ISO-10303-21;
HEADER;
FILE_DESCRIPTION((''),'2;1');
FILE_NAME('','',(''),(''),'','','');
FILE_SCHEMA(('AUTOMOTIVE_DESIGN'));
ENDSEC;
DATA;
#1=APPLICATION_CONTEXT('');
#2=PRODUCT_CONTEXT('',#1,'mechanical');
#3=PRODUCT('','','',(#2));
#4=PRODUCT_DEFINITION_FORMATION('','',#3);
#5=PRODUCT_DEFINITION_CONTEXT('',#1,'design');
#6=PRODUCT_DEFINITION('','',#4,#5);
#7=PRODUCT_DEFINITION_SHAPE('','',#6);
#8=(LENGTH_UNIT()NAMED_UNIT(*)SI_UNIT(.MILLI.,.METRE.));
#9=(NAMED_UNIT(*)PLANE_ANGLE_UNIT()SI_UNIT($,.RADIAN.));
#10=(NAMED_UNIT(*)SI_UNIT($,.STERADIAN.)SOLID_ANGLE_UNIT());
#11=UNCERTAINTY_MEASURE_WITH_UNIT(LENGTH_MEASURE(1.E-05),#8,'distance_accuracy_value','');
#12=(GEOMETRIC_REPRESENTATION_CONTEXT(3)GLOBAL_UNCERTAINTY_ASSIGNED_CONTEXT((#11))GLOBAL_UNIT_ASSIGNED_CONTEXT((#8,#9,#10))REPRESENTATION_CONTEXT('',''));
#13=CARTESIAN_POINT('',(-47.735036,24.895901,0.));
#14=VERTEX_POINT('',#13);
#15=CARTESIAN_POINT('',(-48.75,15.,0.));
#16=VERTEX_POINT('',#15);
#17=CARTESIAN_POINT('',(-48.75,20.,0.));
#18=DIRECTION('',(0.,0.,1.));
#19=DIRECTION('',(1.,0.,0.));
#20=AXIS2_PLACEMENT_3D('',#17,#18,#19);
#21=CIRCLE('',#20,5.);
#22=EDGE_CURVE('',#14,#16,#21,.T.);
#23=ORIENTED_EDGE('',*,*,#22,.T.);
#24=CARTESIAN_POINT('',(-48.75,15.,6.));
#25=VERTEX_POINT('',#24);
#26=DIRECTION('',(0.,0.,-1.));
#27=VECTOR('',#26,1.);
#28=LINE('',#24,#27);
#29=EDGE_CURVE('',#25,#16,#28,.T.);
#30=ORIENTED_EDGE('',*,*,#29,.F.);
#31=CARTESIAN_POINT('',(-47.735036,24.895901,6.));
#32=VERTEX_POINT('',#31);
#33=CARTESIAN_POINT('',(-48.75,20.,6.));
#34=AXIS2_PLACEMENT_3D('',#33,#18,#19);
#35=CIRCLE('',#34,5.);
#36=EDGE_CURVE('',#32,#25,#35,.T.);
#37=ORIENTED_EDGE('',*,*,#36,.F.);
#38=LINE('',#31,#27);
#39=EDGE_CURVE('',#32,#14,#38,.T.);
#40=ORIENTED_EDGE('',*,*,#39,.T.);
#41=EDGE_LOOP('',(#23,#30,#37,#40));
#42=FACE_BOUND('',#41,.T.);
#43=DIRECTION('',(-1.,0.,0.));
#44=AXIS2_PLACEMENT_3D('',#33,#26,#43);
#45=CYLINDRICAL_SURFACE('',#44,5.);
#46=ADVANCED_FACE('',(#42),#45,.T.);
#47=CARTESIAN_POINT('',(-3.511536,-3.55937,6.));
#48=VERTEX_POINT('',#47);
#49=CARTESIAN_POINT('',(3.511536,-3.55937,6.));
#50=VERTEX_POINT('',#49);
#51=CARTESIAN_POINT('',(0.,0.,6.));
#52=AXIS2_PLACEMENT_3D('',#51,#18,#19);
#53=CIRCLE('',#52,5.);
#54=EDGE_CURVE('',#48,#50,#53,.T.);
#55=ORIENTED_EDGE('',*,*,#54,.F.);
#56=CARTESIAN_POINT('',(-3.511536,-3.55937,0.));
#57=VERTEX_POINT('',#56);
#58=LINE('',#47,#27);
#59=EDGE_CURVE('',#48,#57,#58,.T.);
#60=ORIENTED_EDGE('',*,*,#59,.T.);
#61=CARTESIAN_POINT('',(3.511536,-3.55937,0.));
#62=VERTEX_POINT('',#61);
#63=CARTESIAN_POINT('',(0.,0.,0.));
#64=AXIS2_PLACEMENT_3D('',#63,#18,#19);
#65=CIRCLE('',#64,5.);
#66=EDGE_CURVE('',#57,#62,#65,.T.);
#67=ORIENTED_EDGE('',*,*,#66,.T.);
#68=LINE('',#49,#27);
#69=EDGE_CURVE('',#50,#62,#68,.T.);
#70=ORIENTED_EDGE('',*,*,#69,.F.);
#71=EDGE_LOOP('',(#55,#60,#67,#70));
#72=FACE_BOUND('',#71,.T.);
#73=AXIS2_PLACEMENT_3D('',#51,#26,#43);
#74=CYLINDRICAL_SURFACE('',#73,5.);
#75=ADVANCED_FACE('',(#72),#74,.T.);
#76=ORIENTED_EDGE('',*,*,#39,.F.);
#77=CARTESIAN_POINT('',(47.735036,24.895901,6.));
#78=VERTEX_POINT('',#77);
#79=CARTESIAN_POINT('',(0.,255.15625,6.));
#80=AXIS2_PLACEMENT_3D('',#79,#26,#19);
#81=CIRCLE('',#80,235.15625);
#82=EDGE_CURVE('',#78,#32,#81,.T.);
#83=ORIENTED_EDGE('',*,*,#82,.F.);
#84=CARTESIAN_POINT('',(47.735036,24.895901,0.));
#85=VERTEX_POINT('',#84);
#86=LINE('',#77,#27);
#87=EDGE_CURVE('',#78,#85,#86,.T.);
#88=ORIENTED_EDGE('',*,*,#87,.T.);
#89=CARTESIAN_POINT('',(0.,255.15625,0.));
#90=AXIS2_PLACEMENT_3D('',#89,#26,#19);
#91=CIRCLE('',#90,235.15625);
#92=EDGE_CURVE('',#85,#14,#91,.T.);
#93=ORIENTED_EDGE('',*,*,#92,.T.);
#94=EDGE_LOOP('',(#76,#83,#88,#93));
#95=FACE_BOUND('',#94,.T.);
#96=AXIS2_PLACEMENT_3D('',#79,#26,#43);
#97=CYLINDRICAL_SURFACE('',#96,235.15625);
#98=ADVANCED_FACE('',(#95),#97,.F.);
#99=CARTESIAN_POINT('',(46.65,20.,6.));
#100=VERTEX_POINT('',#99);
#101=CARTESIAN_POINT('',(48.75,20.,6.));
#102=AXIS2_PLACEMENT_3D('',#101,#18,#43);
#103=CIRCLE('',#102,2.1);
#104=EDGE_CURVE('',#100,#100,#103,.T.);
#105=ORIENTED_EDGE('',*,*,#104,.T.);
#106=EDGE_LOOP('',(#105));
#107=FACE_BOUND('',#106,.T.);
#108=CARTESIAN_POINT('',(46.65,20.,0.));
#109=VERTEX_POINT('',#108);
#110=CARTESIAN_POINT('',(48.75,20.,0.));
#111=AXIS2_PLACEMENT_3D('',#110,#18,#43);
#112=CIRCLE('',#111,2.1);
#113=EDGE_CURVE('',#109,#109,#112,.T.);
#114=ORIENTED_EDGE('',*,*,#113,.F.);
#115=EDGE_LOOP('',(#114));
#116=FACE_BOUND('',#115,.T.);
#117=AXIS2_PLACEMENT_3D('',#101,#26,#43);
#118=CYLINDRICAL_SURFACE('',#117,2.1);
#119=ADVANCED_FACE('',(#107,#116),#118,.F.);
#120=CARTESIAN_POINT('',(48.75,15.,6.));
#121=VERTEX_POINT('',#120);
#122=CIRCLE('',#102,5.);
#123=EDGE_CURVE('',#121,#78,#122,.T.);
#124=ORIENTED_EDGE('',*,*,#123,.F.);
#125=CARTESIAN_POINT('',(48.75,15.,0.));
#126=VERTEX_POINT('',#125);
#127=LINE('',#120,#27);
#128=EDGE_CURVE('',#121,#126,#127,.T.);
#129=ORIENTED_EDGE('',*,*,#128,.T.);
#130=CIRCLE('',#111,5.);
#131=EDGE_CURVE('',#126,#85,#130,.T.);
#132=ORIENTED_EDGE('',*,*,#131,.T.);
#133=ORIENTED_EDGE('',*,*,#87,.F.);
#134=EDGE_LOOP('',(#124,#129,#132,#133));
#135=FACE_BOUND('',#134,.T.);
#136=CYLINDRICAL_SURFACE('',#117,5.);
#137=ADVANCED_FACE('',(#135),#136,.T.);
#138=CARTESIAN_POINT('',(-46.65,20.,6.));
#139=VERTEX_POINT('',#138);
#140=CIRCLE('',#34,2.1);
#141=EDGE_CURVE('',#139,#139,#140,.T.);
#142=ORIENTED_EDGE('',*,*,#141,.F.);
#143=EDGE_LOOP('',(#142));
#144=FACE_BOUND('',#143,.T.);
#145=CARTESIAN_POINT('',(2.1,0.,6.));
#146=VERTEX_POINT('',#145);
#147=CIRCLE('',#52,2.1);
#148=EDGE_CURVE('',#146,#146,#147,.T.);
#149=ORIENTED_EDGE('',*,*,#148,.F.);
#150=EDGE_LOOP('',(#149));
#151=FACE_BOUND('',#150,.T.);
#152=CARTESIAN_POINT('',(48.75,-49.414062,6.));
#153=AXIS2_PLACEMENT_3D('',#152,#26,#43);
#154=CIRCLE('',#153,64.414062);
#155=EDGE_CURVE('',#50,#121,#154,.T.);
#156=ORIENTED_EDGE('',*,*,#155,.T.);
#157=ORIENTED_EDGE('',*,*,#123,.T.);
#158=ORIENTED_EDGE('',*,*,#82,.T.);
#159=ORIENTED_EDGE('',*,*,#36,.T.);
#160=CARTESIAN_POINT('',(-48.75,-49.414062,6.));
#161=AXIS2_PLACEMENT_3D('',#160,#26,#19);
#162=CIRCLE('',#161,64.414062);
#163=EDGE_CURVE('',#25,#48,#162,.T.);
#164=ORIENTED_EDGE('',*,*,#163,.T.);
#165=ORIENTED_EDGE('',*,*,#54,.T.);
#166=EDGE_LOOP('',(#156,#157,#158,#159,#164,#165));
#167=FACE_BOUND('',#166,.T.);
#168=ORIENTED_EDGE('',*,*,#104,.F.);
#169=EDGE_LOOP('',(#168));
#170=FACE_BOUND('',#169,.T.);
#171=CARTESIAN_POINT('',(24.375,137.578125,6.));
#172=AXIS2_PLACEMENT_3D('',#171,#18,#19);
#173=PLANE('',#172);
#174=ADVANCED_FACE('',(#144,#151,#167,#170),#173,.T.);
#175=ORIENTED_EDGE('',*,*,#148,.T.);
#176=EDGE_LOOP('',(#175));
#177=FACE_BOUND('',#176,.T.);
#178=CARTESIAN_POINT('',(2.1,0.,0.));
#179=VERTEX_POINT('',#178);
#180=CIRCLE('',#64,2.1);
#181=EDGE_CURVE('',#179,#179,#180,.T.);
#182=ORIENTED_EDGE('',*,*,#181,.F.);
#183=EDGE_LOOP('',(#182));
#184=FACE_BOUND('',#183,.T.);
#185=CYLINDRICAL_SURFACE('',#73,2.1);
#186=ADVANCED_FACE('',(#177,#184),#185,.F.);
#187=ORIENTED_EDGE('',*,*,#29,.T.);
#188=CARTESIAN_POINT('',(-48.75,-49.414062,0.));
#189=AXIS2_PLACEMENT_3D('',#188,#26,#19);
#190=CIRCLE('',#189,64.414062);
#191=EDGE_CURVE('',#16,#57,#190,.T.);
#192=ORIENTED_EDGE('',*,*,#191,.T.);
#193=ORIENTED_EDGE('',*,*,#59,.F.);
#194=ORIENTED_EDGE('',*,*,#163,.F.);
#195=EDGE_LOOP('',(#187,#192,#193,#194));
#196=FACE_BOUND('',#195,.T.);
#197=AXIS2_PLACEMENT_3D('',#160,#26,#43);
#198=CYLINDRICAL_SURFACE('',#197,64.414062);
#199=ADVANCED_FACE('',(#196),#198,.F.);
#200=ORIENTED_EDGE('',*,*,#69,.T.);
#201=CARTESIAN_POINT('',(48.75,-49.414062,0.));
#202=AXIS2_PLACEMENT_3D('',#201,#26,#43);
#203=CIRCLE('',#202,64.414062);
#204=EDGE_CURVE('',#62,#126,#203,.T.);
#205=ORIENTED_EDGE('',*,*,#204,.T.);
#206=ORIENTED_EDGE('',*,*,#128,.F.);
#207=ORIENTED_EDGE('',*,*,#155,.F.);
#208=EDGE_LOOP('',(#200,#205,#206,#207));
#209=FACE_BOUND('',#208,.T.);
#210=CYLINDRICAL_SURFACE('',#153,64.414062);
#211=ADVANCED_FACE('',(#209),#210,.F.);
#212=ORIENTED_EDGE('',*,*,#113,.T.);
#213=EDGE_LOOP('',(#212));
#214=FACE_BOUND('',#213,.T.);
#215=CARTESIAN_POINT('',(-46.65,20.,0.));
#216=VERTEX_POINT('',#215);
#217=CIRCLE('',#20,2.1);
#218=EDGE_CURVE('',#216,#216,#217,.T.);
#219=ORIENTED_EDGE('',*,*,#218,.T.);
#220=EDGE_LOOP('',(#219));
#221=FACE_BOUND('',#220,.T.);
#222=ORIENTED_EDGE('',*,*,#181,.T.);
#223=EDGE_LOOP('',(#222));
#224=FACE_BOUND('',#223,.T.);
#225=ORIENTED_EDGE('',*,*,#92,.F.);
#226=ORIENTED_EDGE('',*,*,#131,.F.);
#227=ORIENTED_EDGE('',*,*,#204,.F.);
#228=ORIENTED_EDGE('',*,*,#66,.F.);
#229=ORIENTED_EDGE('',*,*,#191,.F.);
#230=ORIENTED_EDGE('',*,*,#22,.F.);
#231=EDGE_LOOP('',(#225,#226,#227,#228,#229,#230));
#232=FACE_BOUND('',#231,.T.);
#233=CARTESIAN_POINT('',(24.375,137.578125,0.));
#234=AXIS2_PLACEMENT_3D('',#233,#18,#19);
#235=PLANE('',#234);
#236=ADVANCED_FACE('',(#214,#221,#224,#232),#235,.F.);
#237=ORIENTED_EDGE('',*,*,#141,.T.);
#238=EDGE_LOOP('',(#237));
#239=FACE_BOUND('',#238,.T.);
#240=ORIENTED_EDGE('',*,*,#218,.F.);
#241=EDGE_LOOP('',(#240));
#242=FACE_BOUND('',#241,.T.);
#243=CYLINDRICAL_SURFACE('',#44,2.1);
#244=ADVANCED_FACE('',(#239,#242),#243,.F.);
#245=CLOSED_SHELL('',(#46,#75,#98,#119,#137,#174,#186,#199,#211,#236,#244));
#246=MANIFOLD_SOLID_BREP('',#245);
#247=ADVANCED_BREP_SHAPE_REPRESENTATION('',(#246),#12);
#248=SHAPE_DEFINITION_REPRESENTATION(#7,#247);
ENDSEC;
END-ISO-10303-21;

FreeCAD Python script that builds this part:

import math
import FreeCAD as App
import Part
import Sketcher

doc = App.newDocument("Part")
params = doc.addObject("Spreadsheet::Sheet", "Params")
for row, (alias, value) in enumerate([
    ("sketch1_radius", "5 mm"),
    ("sketch1_diameter", "4.2 mm"),
    ("pad1_length", "6 mm"),
], start=1):
    params.set(f"A{row}", alias)
    params.set(f"B{row}", "=" + value)
    params.setAlias(f"B{row}", alias)

body = doc.addObject("PartDesign::Body", "Body")

# Sketch on XY plane
sketch1 = body.newObject("Sketcher::SketchObject", "Sketch")
sketch1.AttachmentSupport = (doc.getObject("XY_Plane"), [""])
sketch1.MapMode = "FlatFace"
sketch1.addGeometry([
    Part.ArcOfCircle(Part.Circle(App.Vector(48.75, -49.414063, 0), App.Vector(0, 0, 1), 64.414063), math.radians(90), math.radians(134.61241)),  # 0
    Part.ArcOfCircle(Part.Circle(App.Vector(48.75, 20, 0), App.Vector(0, 0, 1), 5), math.radians(-90), math.radians(101.712027)),  # 1
    Part.ArcOfCircle(Part.Circle(App.Vector(0, 255.15625, 0), App.Vector(0, 0, 1), 235.15625), math.radians(-101.712027), math.radians(-78.287973)),  # 2
    Part.ArcOfCircle(Part.Circle(App.Vector(-48.75, 20, 0), App.Vector(0, 0, 1), 5), math.radians(78.287973), math.radians(270)),  # 3
    Part.ArcOfCircle(Part.Circle(App.Vector(-48.75, -49.414063, 0), App.Vector(0, 0, 1), 64.414063), math.radians(45.38759), math.radians(90)),  # 4
    Part.ArcOfCircle(Part.Circle(App.Vector(0, 0, 0), App.Vector(0, 0, 1), 5), math.radians(-134.61241), math.radians(-45.38759)),  # 5
    Part.Circle(App.Vector(0, 0, 0), App.Vector(0, 0, 1), 2.1),  # 6
    Part.Circle(App.Vector(-48.75, 20, 0), App.Vector(0, 0, 1), 2.1),  # 7
    Part.Circle(App.Vector(48.75, 20, 0), App.Vector(0, 0, 1), 2.1),  # 8
], False)
sketch1.addConstraint([
    Sketcher.Constraint("Tangent", 0, 1, 1, 1),
    Sketcher.Constraint("Tangent", 1, 2, 2, 2),
    Sketcher.Constraint("Tangent", 2, 1, 3, 1),
    Sketcher.Constraint("Tangent", 3, 2, 4, 2),
    Sketcher.Constraint("Tangent", 4, 1, 5, 1),
    Sketcher.Constraint("Tangent", 5, 2, 0, 2),
    Sketcher.Constraint("Coincident", 5, 3, -1, 1),
    Sketcher.Constraint("Coincident", 6, 3, -1, 1),
    Sketcher.Constraint("Coincident", 7, 3, 3, 3),
    Sketcher.Constraint("Coincident", 8, 3, 1, 3),
    Sketcher.Constraint("Equal", 1, 3),
    Sketcher.Constraint("Equal", 0, 4),
    Sketcher.Constraint("Equal", 3, 5),
    Sketcher.Constraint("Equal", 6, 7),
    Sketcher.Constraint("Equal", 7, 8),
    Sketcher.Constraint("Symmetric", 1, 3, 3, 3, -2),
    Sketcher.Constraint("Vertical", 0, 3, 1, 3),
    Sketcher.Constraint("Radius", 1, 5.0),
    Sketcher.Constraint("Diameter", 6, 4.2),
    Sketcher.Constraint("DistanceY", -1, 1, 1, 3, 20.0),
    Sketcher.Constraint("DistanceX", 3, 3, 1, 3, 97.5),
    Sketcher.Constraint("Radius", 2, 235.15625),
])
sketch1.setExpression("Constraints[17]", "Params.sketch1_radius")
sketch1.setExpression("Constraints[18]", "Params.sketch1_diameter")
pad1 = body.newObject("PartDesign::Pad", "Pad")
pad1.Profile = sketch1
pad1.setExpression("Length", "Params.pad1_length")

doc.recompute()
